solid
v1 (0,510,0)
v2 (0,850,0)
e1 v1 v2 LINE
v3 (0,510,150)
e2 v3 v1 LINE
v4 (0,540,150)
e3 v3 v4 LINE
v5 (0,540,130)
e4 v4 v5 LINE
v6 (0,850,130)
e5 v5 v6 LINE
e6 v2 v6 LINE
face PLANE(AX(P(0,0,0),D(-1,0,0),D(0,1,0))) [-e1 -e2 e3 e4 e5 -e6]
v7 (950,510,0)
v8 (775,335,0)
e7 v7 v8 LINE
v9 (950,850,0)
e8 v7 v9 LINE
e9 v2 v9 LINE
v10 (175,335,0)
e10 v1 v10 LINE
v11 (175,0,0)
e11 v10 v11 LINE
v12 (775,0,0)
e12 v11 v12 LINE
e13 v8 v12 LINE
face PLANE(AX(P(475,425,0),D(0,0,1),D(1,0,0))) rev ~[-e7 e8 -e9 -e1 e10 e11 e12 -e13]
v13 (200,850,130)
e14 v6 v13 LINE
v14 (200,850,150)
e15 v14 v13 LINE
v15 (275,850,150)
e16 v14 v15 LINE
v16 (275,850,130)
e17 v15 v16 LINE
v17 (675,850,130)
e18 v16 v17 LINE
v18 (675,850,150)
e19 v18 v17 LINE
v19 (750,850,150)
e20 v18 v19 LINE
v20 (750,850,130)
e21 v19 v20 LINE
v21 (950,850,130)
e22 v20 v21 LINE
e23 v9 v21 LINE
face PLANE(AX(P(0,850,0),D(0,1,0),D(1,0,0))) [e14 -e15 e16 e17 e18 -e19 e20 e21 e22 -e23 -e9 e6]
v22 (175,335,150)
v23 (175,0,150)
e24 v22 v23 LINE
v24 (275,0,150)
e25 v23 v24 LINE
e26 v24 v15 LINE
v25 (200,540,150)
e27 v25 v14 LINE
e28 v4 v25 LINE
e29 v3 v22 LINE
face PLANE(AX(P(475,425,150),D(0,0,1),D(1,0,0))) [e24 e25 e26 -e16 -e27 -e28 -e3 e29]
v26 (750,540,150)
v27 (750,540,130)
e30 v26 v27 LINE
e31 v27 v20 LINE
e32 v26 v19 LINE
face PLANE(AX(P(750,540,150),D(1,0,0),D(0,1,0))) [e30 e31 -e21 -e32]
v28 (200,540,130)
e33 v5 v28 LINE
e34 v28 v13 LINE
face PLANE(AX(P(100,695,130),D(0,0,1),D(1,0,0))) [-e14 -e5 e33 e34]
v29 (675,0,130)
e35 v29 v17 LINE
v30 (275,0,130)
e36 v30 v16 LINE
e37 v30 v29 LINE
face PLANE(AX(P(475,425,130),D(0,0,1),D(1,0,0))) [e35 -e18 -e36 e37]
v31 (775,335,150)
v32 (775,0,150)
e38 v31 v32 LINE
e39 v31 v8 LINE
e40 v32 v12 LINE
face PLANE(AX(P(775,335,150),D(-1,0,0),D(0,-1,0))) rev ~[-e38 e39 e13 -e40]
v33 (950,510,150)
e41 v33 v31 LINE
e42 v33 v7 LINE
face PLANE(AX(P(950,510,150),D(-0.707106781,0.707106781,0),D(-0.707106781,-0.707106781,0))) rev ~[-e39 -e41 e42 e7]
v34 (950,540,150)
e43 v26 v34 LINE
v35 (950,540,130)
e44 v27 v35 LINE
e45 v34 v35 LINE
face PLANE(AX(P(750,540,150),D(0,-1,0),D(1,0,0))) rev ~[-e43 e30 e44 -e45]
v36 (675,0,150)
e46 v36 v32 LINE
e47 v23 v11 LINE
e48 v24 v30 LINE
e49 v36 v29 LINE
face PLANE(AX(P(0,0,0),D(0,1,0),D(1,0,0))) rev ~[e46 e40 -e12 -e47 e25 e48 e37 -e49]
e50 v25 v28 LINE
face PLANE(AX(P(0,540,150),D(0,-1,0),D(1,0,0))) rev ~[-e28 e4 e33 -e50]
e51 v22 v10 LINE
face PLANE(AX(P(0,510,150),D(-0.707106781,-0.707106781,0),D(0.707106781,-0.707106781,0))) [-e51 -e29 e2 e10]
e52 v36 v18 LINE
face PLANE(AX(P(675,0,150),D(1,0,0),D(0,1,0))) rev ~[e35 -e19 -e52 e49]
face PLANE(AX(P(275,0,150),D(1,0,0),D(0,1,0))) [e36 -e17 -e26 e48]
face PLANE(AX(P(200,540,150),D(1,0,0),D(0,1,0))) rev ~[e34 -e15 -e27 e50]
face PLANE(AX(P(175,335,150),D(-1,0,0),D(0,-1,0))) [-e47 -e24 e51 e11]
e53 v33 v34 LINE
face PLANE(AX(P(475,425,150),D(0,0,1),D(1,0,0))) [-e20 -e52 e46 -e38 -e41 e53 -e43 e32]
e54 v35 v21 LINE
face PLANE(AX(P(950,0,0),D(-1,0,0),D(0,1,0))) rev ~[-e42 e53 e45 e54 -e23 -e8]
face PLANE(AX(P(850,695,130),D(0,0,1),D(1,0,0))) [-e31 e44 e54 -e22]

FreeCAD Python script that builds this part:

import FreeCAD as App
import Part
import Sketcher

doc = App.newDocument("Part")
body = doc.addObject("PartDesign::Body", "Body")

sketch1 = body.newObject("Sketcher::SketchObject", "Sketch")
sketch1.AttachmentSupport = (doc.getObject("XY_Plane"), [""])
sketch1.MapMode = "FlatFace"
sketch1.addGeometry([
    Part.LineSegment(App.Vector(0, 850, 0), App.Vector(0, 0, 0)),
    Part.LineSegment(App.Vector(0, 0, 0), App.Vector(950, 0, 0)),
    Part.LineSegment(App.Vector(950, 0, 0), App.Vector(950, 850, 0)),
    Part.LineSegment(App.Vector(950, 850, 0), App.Vector(0, 850, 0)),
], False)
sketch1.addConstraint([
    Sketcher.Constraint("Coincident", 0, 2, 1, 1),
    Sketcher.Constraint("Coincident", 1, 2, 2, 1),
    Sketcher.Constraint("Coincident", 2, 2, 3, 1),
    Sketcher.Constraint("Coincident", 3, 2, 0, 1),
    Sketcher.Constraint("Vertical", 0),
    Sketcher.Constraint("Horizontal", 1),
    Sketcher.Constraint("Vertical", 2),
    Sketcher.Constraint("Horizontal", 3),
    Sketcher.Constraint("Coincident", 0, 2, -1, 1),
    Sketcher.Constraint("DistanceX", 1, 1, 1, 2, 950.0),
    Sketcher.Constraint("DistanceY", 0, 2, 0, 1, 850.0),
])
pad1 = body.newObject("PartDesign::Pad", "Pad")
pad1.Profile = sketch1
pad1.Length = 150

sketch2 = body.newObject("Sketcher::SketchObject", "Sketch001")
sketch2.AttachmentSupport = (doc.getObject("XY_Plane"), [""])
sketch2.MapMode = "FlatFace"
sketch2.AttachmentOffset = App.Placement(App.Vector(0, 0, 150), App.Rotation())
sketch2.addGeometry([
    Part.LineSegment(App.Vector(0, 850, 0), App.Vector(0, 540, 0)),
    Part.LineSegment(App.Vector(0, 540, 0), App.Vector(200, 540, 0)),
    Part.LineSegment(App.Vector(200, 540, 0), App.Vector(200, 850, 0)),
    Part.LineSegment(App.Vector(200, 850, 0), App.Vector(0, 850, 0)),
    Part.LineSegment(App.Vector(750, 850, 0), App.Vector(750, 540, 0)),
    Part.LineSegment(App.Vector(750, 540, 0), App.Vector(950, 540, 0)),
    Part.LineSegment(App.Vector(950, 540, 0), App.Vector(950, 850, 0)),
    Part.LineSegment(App.Vector(950, 850, 0), App.Vector(750, 850, 0)),
], False)
sketch2.addConstraint([
    Sketcher.Constraint("Coincident", 0, 2, 1, 1),
    Sketcher.Constraint("Coincident", 1, 2, 2, 1),
    Sketcher.Constraint("Coincident", 2, 2, 3, 1),
    Sketcher.Constraint("Coincident", 3, 2, 0, 1),
    Sketcher.Constraint("Coincident", 4, 2, 5, 1),
    Sketcher.Constraint("Coincident", 5, 2, 6, 1),
    Sketcher.Constraint("Coincident", 6, 2, 7, 1),
    Sketcher.Constraint("Coincident", 7, 2, 4, 1),
    Sketcher.Constraint("Vertical", 0),
    Sketcher.Constraint("Horizontal", 1),
    Sketcher.Constraint("Vertical", 2),
    Sketcher.Constraint("Horizontal", 3),
    Sketcher.Constraint("Vertical", 4),
    Sketcher.Constraint("Horizontal", 5),
    Sketcher.Constraint("Vertical", 6),
    Sketcher.Constraint("Horizontal", 7),
    Sketcher.Constraint("PointOnObject", 0, 2, -2),
    Sketcher.Constraint("Horizontal", 1, 2, 4, 2),
    Sketcher.Constraint("Horizontal", 3, 2, 6, 2),
    Sketcher.Constraint("Equal", 3, 5),
    Sketcher.Constraint("DistanceX", 1, 1, 1, 2, 200.0),
    Sketcher.Constraint("DistanceY", 0, 2, 0, 1, 310.0),
    Sketcher.Constraint("DistanceY", -1, 1, 0, 2, 540.0),
    Sketcher.Constraint("DistanceX", -1, 1, 4, 2, 750.0),
])
pocket1 = body.newObject("PartDesign::Pocket", "Pocket")
pocket1.Profile = sketch2
pocket1.Length = 20

sketch3 = body.newObject("Sketcher::SketchObject", "Sketch002")
sketch3.AttachmentSupport = (doc.getObject("XY_Plane"), [""])
sketch3.MapMode = "FlatFace"
sketch3.AttachmentOffset = App.Placement(App.Vector(0, 0, 150), App.Rotation())
sketch3.addGeometry([
    Part.LineSegment(App.Vector(275, 850, 0), App.Vector(275, 0, 0)),
    Part.LineSegment(App.Vector(275, 0, 0), App.Vector(675, 0, 0)),
    Part.LineSegment(App.Vector(675, 0, 0), App.Vector(675, 850, 0)),
    Part.LineSegment(App.Vector(675, 850, 0), App.Vector(275, 850, 0)),
], False)
sketch3.addConstraint([
    Sketcher.Constraint("Coincident", 0, 2, 1, 1),
    Sketcher.Constraint("Coincident", 1, 2, 2, 1),
    Sketcher.Constraint("Coincident", 2, 2, 3, 1),
    Sketcher.Constraint("Coincident", 3, 2, 0, 1),
    Sketcher.Constraint("Vertical", 0),
    Sketcher.Constraint("Horizontal", 1),
    Sketcher.Constraint("Vertical", 2),
    Sketcher.Constraint("Horizontal", 3),
    Sketcher.Constraint("PointOnObject", 0, 2, -1),
    Sketcher.Constraint("DistanceX", 1, 1, 1, 2, 400.0),
    Sketcher.Constraint("DistanceY", 0, 2, 0, 1, 850.0),
    Sketcher.Constraint("DistanceX", -1, 1, 0, 2, 275.0),
])
pocket2 = body.newObject("PartDesign::Pocket", "Pocket001")
pocket2.Profile = sketch3
pocket2.Length = 20

sketch4 = body.newObject("Sketcher::SketchObject", "Sketch003")
sketch4.AttachmentSupport = (doc.getObject("XY_Plane"), [""])
sketch4.MapMode = "FlatFace"
sketch4.AttachmentOffset = App.Placement(App.Vector(0, 0, 150), App.Rotation())
sketch4.addGeometry([
    Part.LineSegment(App.Vector(175, 335, 0), App.Vector(0, 510, 0)),
    Part.LineSegment(App.Vector(0, 510, 0), App.Vector(0, 0, 0)),
    Part.LineSegment(App.Vector(0, 0, 0), App.Vector(175, 0, 0)),
    Part.LineSegment(App.Vector(175, 0, 0), App.Vector(175, 335, 0)),
    Part.LineSegment(App.Vector(950, 510, 0), App.Vector(775, 335, 0)),
    Part.LineSegment(App.Vector(775, 335, 0), App.Vector(775, 0, 0)),
    Part.LineSegment(App.Vector(775, 0, 0), App.Vector(950, 0, 0)),
    Part.LineSegment(App.Vector(950, 0, 0), App.Vector(950, 510, 0)),
], False)
sketch4.addConstraint([
    Sketcher.Constraint("Coincident", 0, 2, 1, 1),
    Sketcher.Constraint("Coincident", 1, 2, 2, 1),
    Sketcher.Constraint("Coincident", 2, 2, 3, 1),
    Sketcher.Constraint("Coincident", 3, 2, 0, 1),
    Sketcher.Constraint("Coincident", 4, 2, 5, 1),
    Sketcher.Constraint("Coincident", 5, 2, 6, 1),
    Sketcher.Constraint("Coincident", 6, 2, 7, 1),
    Sketcher.Constraint("Coincident", 7, 2, 4, 1),
    Sketcher.Constraint("Vertical", 1),
    Sketcher.Constraint("Horizontal", 2),
    Sketcher.Constraint("Vertical", 3),
    Sketcher.Constraint("Vertical", 5),
    Sketcher.Constraint("Horizontal", 6),
    Sketcher.Constraint("Vertical", 7),
    Sketcher.Constraint("Coincident", 1, 2, -1, 1),
    Sketcher.Constraint("PointOnObject", 5, 2, -1),
    Sketcher.Constraint("Perpendicular", 0, 4),
    Sketcher.Constraint("Horizontal", 3, 2, 4, 2),
    Sketcher.Constraint("Horizontal", 0, 2, 7, 2),
    Sketcher.Constraint("Equal", 2, 6),
    Sketcher.Constraint("DistanceX", 2, 1, 2, 2, 175.0),
    Sketcher.Constraint("DistanceY", 1, 2, 1, 1, 510.0),
    Sketcher.Constraint("DistanceX", -1, 1, 4, 2, 775.0),
])
pocket3 = body.newObject("PartDesign::Pocket", "Pocket002")
pocket3.Profile = sketch4
pocket3.Type = "ThroughAll"

doc.recompute()
